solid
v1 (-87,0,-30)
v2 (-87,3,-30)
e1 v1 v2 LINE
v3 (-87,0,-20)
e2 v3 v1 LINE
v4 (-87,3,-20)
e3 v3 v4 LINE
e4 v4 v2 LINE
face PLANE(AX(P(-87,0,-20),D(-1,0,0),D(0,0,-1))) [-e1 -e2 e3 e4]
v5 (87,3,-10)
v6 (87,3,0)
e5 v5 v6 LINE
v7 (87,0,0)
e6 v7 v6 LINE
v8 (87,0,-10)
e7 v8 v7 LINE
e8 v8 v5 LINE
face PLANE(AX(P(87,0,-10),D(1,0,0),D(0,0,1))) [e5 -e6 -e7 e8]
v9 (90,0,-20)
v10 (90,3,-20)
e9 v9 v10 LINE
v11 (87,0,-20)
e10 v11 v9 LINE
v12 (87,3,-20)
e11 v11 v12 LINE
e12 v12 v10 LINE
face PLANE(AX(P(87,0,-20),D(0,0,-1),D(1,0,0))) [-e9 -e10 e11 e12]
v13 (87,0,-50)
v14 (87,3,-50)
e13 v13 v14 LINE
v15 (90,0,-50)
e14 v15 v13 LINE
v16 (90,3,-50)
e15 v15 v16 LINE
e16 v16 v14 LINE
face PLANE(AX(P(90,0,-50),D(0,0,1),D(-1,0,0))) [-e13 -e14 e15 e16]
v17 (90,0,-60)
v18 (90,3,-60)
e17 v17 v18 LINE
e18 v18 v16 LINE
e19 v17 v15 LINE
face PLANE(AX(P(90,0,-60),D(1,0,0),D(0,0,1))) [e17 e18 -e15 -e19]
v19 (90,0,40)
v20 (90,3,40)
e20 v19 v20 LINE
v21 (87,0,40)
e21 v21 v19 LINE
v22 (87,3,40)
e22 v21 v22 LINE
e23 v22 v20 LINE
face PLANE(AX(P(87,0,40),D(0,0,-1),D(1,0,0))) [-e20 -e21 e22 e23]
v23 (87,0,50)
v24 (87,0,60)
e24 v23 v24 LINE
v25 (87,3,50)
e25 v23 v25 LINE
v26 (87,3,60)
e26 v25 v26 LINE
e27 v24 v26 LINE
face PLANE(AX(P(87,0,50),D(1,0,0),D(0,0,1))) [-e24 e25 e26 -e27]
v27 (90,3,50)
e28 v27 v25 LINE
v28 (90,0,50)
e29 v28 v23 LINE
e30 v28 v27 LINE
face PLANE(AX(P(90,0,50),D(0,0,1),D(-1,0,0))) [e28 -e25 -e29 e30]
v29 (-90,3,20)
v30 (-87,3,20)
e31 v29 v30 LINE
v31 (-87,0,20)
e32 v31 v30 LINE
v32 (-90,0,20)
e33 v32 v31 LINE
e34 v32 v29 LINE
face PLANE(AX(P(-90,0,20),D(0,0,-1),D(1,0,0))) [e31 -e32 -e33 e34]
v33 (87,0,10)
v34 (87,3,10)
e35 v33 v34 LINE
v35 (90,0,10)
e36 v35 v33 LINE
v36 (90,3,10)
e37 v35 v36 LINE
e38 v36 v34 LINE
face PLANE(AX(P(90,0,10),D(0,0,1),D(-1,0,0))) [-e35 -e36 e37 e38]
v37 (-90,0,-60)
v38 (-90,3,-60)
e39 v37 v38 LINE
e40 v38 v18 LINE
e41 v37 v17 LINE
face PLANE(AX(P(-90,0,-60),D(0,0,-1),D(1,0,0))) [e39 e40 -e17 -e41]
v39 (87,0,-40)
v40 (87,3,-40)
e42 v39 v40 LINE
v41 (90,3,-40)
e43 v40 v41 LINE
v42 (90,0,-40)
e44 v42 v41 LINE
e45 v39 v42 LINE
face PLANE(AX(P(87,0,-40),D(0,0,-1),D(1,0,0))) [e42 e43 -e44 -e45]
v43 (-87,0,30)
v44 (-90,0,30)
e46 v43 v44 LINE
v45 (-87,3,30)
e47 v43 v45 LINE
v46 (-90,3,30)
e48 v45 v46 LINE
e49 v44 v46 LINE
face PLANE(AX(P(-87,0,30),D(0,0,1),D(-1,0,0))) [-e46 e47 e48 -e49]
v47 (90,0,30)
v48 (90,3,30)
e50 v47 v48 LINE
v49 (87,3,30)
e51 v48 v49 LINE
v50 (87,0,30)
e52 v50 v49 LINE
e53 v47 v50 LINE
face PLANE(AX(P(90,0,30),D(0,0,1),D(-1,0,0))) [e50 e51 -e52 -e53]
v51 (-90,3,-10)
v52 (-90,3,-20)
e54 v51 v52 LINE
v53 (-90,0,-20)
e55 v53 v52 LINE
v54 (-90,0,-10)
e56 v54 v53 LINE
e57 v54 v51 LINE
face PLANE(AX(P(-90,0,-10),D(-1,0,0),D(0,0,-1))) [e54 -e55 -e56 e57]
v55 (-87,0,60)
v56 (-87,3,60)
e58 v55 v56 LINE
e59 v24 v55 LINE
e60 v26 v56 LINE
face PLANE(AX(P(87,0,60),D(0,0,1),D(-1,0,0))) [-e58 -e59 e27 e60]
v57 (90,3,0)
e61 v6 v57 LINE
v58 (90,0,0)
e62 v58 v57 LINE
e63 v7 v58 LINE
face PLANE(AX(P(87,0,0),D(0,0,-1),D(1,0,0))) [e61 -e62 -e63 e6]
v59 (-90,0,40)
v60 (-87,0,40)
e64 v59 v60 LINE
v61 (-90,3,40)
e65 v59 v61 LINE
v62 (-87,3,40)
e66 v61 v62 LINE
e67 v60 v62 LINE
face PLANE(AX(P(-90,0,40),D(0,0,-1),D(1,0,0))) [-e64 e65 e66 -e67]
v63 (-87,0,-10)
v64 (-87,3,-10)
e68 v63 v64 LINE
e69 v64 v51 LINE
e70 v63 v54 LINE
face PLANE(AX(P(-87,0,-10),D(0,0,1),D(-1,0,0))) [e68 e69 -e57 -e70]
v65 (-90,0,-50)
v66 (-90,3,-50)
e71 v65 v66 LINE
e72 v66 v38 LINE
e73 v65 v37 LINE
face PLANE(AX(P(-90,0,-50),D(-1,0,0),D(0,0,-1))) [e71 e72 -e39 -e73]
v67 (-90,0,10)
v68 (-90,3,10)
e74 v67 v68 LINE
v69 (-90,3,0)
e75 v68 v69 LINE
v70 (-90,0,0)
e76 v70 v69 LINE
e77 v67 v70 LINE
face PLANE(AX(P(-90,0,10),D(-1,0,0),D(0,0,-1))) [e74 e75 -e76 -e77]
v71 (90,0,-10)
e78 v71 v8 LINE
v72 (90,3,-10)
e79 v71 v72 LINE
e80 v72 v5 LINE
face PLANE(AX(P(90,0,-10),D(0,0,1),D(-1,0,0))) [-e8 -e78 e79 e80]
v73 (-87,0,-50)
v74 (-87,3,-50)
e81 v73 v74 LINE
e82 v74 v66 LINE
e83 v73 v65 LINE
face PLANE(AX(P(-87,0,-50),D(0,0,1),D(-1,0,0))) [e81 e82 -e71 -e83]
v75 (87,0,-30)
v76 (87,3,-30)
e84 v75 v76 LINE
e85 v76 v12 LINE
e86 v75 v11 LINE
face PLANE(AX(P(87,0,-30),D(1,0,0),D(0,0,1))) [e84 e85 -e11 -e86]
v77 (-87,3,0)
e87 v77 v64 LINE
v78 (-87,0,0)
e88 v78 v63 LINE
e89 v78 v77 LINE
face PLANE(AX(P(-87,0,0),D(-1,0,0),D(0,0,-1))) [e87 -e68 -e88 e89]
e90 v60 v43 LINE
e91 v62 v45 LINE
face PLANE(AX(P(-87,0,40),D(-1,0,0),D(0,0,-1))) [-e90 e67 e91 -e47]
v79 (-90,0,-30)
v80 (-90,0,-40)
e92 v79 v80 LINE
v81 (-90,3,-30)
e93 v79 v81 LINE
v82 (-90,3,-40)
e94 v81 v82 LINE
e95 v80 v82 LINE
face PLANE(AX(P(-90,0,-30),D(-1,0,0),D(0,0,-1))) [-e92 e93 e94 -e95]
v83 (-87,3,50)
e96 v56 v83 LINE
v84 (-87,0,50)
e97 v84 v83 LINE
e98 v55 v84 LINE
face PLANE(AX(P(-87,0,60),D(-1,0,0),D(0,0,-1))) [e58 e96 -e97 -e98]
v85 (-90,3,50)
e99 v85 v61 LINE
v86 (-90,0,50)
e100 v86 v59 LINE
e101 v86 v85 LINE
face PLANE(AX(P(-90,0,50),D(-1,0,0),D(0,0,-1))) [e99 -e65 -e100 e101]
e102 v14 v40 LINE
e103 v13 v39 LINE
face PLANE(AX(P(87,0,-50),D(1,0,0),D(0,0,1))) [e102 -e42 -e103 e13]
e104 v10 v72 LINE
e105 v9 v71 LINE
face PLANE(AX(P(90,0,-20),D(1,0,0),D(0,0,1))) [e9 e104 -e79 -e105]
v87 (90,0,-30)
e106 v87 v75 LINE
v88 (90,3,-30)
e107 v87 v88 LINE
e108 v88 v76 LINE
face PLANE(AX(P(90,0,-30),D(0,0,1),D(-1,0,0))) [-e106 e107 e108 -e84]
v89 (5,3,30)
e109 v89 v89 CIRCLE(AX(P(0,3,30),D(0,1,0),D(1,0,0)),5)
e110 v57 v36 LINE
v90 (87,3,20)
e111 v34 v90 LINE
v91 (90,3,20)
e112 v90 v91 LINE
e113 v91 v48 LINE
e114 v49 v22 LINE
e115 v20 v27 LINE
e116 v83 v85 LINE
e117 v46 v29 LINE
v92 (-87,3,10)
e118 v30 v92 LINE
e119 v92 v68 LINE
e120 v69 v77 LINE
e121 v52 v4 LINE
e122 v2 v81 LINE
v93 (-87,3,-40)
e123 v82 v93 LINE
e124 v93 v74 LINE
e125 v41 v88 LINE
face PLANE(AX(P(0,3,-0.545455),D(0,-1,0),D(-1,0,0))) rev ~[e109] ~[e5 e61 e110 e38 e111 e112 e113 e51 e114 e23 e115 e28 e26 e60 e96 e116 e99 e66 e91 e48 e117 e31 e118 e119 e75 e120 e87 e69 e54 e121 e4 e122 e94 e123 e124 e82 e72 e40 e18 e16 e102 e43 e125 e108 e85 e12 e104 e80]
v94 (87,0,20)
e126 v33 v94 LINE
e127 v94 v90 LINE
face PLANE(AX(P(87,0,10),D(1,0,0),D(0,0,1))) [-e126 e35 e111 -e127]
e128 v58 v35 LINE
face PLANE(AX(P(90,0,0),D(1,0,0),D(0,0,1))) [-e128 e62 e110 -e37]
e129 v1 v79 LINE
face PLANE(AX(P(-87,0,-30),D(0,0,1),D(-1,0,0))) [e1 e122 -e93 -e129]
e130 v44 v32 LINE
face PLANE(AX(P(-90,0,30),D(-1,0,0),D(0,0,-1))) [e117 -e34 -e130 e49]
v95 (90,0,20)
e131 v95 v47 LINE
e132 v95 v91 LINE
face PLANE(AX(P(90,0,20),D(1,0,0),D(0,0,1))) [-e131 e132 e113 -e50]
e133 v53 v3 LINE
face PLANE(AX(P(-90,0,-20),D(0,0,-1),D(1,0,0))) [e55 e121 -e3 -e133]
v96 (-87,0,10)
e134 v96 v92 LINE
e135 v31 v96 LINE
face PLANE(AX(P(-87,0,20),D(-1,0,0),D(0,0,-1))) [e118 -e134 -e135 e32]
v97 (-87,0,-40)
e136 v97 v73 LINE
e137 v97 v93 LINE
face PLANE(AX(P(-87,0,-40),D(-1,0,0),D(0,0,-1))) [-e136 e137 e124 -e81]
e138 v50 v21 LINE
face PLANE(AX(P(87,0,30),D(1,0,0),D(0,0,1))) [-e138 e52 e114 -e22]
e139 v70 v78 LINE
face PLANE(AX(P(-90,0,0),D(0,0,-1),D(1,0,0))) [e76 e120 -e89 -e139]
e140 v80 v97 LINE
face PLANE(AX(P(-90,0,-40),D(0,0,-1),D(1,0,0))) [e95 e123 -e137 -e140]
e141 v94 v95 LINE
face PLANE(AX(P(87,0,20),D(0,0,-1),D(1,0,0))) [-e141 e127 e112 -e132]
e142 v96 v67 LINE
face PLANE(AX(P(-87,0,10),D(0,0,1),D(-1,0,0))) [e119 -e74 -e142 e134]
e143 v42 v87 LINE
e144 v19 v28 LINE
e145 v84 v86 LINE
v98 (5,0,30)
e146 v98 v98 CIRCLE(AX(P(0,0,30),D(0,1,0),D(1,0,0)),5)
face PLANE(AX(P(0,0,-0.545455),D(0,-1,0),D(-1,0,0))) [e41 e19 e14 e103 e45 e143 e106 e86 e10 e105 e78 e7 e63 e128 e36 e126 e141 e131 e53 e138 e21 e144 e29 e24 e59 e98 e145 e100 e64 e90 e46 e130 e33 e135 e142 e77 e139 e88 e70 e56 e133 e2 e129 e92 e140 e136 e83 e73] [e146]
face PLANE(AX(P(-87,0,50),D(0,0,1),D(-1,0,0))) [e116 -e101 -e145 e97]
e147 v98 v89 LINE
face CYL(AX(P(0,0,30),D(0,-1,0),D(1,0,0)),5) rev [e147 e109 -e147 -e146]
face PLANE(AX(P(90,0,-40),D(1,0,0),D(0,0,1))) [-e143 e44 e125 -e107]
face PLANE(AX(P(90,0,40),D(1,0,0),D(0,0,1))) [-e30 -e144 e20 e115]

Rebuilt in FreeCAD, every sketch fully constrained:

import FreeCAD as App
import Part
import Sketcher

V = App.Vector


def add_polygon(sketch, points):
    """Adds a closed chain of lines whose ends are joined by coincident constraints."""
    first, n = sketch.GeometryCount, len(points)
    for a, b in zip(points, points[1:] + points[:1]):
        sketch.addGeometry(Part.LineSegment(App.Vector(*a, 0), App.Vector(*b, 0)), False)
    for i in range(n):
        sketch.addConstraint(Sketcher.Constraint("Coincident", first + i, 2, first + (i + 1) % n, 1))

doc = App.newDocument("Part")
body = doc.addObject("PartDesign::Body", "Body")

sketch1 = doc.addObject("Sketcher::SketchObject", "Sketch")
body.addObject(sketch1)
sketch1.AttachmentSupport = (doc.XZ_Plane, [""])
sketch1.MapMode = "FlatFace"
add_polygon(sketch1, [(90, -60), (-90, -60), (-90, -50), (-87, -50), (-87, -40), (-90, -40), (-90, -30), (-87, -30), (-87, -20), (-90, -20), (-90, -10), (-87, -10), (-87, 0), (-90, 0), (-90, 10), (-87, 10), (-87, 20), (-90, 20), (-90, 30), (-87, 30), (-87, 40), (-90, 40), (-90, 50), (-87, 50), (-87, 60), (87, 60), (87, 50), (90, 50), (90, 40), (87, 40), (87, 30), (90, 30), (90, 20), (87, 20), (87, 10), (90, 10), (90, 0), (87, 0), (87, -10), (90, -10), (90, -20), (87, -20), (87, -30), (90, -30), (90, -40), (87, -40), (87, -50), (90, -50)])
sketch1.addGeometry(Part.Circle(V(0, 30, 0), V(0, 0, 1), 5), False)
sketch1.addConstraint(Sketcher.Constraint("Horizontal", 0))
sketch1.addConstraint(Sketcher.Constraint("Vertical", 1))
sketch1.addConstraint(Sketcher.Constraint("Horizontal", 2))
sketch1.addConstraint(Sketcher.Constraint("Vertical", 3))
sketch1.addConstraint(Sketcher.Constraint("Horizontal", 4))
sketch1.addConstraint(Sketcher.Constraint("Vertical", 5))
sketch1.addConstraint(Sketcher.Constraint("Horizontal", 6))
sketch1.addConstraint(Sketcher.Constraint("Vertical", 7))
sketch1.addConstraint(Sketcher.Constraint("Horizontal", 8))
sketch1.addConstraint(Sketcher.Constraint("Vertical", 9))
sketch1.addConstraint(Sketcher.Constraint("Horizontal", 10))
sketch1.addConstraint(Sketcher.Constraint("Vertical", 11))
sketch1.addConstraint(Sketcher.Constraint("Horizontal", 12))
sketch1.addConstraint(Sketcher.Constraint("Vertical", 13))
sketch1.addConstraint(Sketcher.Constraint("Horizontal", 14))
sketch1.addConstraint(Sketcher.Constraint("Vertical", 15))
sketch1.addConstraint(Sketcher.Constraint("Horizontal", 16))
sketch1.addConstraint(Sketcher.Constraint("Vertical", 17))
sketch1.addConstraint(Sketcher.Constraint("Horizontal", 18))
sketch1.addConstraint(Sketcher.Constraint("Vertical", 19))
sketch1.addConstraint(Sketcher.Constraint("Horizontal", 20))
sketch1.addConstraint(Sketcher.Constraint("Vertical", 21))
sketch1.addConstraint(Sketcher.Constraint("Horizontal", 22))
sketch1.addConstraint(Sketcher.Constraint("Vertical", 23))
sketch1.addConstraint(Sketcher.Constraint("Horizontal", 24))
sketch1.addConstraint(Sketcher.Constraint("Vertical", 25))
sketch1.addConstraint(Sketcher.Constraint("Horizontal", 26))
sketch1.addConstraint(Sketcher.Constraint("Vertical", 27))
sketch1.addConstraint(Sketcher.Constraint("Horizontal", 28))
sketch1.addConstraint(Sketcher.Constraint("Vertical", 29))
sketch1.addConstraint(Sketcher.Constraint("Horizontal", 30))
sketch1.addConstraint(Sketcher.Constraint("Vertical", 31))
sketch1.addConstraint(Sketcher.Constraint("Horizontal", 32))
sketch1.addConstraint(Sketcher.Constraint("Vertical", 33))
sketch1.addConstraint(Sketcher.Constraint("Horizontal", 34))
sketch1.addConstraint(Sketcher.Constraint("Vertical", 35))
sketch1.addConstraint(Sketcher.Constraint("Horizontal", 36))
sketch1.addConstraint(Sketcher.Constraint("Vertical", 37))
sketch1.addConstraint(Sketcher.Constraint("Horizontal", 38))
sketch1.addConstraint(Sketcher.Constraint("Vertical", 39))
sketch1.addConstraint(Sketcher.Constraint("Horizontal", 40))
sketch1.addConstraint(Sketcher.Constraint("Vertical", 41))
sketch1.addConstraint(Sketcher.Constraint("Horizontal", 42))
sketch1.addConstraint(Sketcher.Constraint("Vertical", 43))
sketch1.addConstraint(Sketcher.Constraint("Horizontal", 44))
sketch1.addConstraint(Sketcher.Constraint("Vertical", 45))
sketch1.addConstraint(Sketcher.Constraint("Horizontal", 46))
sketch1.addConstraint(Sketcher.Constraint("Vertical", 47))
sketch1.addConstraint(Sketcher.Constraint("Symmetric", 2, 2, 25, 2, -1, 1))
sketch1.addConstraint(Sketcher.Constraint("Symmetric", 4, 2, 27, 2, -1, 1))
sketch1.addConstraint(Sketcher.Constraint("Symmetric", 6, 2, 29, 2, -1, 1))
sketch1.addConstraint(Sketcher.Constraint("Symmetric", 8, 2, 31, 2, -1, 1))
sketch1.addConstraint(Sketcher.Constraint("Symmetric", 10, 2, 33, 2, -1, 1))
sketch1.addConstraint(Sketcher.Constraint("Symmetric", 12, 2, 35, 2, -1, 1))
sketch1.addConstraint(Sketcher.Constraint("Symmetric", 14, 2, 37, 2, -1, 1))
sketch1.addConstraint(Sketcher.Constraint("Symmetric", 16, 2, 39, 2, -1, 1))
sketch1.addConstraint(Sketcher.Constraint("Symmetric", 18, 2, 41, 2, -1, 1))
sketch1.addConstraint(Sketcher.Constraint("Symmetric", 20, 2, 43, 2, -1, 1))
sketch1.addConstraint(Sketcher.Constraint("Symmetric", 22, 2, 45, 2, -1, 1))
sketch1.addConstraint(Sketcher.Constraint("Symmetric", 22, 2, 25, 2, -2))
sketch1.addConstraint(Sketcher.Constraint("Symmetric", 20, 2, 27, 2, -2))
sketch1.addConstraint(Sketcher.Constraint("Symmetric", 18, 2, 29, 2, -2))
sketch1.addConstraint(Sketcher.Constraint("Symmetric", 16, 2, 31, 2, -2))
sketch1.addConstraint(Sketcher.Constraint("Symmetric", 14, 2, 33, 2, -2))
sketch1.addConstraint(Sketcher.Constraint("PointOnObject", 48, 3, -2))
sketch1.addConstraint(Sketcher.Constraint("PointOnObject", 11, 2, -1))
sketch1.addConstraint(Sketcher.Constraint("Horizontal", 48, 3, 17, 2))
sketch1.addConstraint(Sketcher.Constraint("Vertical", 1, 2, 4, 2))
sketch1.addConstraint(Sketcher.Constraint("Vertical", 3, 2, 6, 2))
sketch1.addConstraint(Sketcher.Constraint("Vertical", 5, 2, 8, 2))
sketch1.addConstraint(Sketcher.Constraint("Vertical", 7, 2, 10, 2))
sketch1.addConstraint(Sketcher.Constraint("Vertical", 9, 2, 12, 2))
sketch1.addConstraint(Sketcher.Constraint("Vertical", 43, 2, 46, 2))
sketch1.addConstraint(Sketcher.Constraint("Equal", 1, 3))
sketch1.addConstraint(Sketcher.Constraint("Equal", 3, 5))
sketch1.addConstraint(Sketcher.Constraint("Equal", 5, 7))
sketch1.addConstraint(Sketcher.Constraint("Equal", 7, 9))
sketch1.addConstraint(Sketcher.Constraint("Equal", 9, 11))
sketch1.addConstraint(Sketcher.Constraint("Equal", 21, 23))
sketch1.addConstraint(Sketcher.Constraint("Diameter", 48, 10.0))
sketch1.addConstraint(Sketcher.Constraint("DistanceX", 0, 2, 0, 1, 180.0))
sketch1.addConstraint(Sketcher.Constraint("DistanceX", 2, 1, 2, 2, 3.0))
sketch1.addConstraint(Sketcher.Constraint("DistanceY", 1, 1, 1, 2, 10.0))
pad1 = doc.addObject("PartDesign::Pad", "Pad")
body.addObject(pad1)
pad1.Profile = sketch1
pad1.Length = 3
pad1.Reversed = True

doc.recompute()
